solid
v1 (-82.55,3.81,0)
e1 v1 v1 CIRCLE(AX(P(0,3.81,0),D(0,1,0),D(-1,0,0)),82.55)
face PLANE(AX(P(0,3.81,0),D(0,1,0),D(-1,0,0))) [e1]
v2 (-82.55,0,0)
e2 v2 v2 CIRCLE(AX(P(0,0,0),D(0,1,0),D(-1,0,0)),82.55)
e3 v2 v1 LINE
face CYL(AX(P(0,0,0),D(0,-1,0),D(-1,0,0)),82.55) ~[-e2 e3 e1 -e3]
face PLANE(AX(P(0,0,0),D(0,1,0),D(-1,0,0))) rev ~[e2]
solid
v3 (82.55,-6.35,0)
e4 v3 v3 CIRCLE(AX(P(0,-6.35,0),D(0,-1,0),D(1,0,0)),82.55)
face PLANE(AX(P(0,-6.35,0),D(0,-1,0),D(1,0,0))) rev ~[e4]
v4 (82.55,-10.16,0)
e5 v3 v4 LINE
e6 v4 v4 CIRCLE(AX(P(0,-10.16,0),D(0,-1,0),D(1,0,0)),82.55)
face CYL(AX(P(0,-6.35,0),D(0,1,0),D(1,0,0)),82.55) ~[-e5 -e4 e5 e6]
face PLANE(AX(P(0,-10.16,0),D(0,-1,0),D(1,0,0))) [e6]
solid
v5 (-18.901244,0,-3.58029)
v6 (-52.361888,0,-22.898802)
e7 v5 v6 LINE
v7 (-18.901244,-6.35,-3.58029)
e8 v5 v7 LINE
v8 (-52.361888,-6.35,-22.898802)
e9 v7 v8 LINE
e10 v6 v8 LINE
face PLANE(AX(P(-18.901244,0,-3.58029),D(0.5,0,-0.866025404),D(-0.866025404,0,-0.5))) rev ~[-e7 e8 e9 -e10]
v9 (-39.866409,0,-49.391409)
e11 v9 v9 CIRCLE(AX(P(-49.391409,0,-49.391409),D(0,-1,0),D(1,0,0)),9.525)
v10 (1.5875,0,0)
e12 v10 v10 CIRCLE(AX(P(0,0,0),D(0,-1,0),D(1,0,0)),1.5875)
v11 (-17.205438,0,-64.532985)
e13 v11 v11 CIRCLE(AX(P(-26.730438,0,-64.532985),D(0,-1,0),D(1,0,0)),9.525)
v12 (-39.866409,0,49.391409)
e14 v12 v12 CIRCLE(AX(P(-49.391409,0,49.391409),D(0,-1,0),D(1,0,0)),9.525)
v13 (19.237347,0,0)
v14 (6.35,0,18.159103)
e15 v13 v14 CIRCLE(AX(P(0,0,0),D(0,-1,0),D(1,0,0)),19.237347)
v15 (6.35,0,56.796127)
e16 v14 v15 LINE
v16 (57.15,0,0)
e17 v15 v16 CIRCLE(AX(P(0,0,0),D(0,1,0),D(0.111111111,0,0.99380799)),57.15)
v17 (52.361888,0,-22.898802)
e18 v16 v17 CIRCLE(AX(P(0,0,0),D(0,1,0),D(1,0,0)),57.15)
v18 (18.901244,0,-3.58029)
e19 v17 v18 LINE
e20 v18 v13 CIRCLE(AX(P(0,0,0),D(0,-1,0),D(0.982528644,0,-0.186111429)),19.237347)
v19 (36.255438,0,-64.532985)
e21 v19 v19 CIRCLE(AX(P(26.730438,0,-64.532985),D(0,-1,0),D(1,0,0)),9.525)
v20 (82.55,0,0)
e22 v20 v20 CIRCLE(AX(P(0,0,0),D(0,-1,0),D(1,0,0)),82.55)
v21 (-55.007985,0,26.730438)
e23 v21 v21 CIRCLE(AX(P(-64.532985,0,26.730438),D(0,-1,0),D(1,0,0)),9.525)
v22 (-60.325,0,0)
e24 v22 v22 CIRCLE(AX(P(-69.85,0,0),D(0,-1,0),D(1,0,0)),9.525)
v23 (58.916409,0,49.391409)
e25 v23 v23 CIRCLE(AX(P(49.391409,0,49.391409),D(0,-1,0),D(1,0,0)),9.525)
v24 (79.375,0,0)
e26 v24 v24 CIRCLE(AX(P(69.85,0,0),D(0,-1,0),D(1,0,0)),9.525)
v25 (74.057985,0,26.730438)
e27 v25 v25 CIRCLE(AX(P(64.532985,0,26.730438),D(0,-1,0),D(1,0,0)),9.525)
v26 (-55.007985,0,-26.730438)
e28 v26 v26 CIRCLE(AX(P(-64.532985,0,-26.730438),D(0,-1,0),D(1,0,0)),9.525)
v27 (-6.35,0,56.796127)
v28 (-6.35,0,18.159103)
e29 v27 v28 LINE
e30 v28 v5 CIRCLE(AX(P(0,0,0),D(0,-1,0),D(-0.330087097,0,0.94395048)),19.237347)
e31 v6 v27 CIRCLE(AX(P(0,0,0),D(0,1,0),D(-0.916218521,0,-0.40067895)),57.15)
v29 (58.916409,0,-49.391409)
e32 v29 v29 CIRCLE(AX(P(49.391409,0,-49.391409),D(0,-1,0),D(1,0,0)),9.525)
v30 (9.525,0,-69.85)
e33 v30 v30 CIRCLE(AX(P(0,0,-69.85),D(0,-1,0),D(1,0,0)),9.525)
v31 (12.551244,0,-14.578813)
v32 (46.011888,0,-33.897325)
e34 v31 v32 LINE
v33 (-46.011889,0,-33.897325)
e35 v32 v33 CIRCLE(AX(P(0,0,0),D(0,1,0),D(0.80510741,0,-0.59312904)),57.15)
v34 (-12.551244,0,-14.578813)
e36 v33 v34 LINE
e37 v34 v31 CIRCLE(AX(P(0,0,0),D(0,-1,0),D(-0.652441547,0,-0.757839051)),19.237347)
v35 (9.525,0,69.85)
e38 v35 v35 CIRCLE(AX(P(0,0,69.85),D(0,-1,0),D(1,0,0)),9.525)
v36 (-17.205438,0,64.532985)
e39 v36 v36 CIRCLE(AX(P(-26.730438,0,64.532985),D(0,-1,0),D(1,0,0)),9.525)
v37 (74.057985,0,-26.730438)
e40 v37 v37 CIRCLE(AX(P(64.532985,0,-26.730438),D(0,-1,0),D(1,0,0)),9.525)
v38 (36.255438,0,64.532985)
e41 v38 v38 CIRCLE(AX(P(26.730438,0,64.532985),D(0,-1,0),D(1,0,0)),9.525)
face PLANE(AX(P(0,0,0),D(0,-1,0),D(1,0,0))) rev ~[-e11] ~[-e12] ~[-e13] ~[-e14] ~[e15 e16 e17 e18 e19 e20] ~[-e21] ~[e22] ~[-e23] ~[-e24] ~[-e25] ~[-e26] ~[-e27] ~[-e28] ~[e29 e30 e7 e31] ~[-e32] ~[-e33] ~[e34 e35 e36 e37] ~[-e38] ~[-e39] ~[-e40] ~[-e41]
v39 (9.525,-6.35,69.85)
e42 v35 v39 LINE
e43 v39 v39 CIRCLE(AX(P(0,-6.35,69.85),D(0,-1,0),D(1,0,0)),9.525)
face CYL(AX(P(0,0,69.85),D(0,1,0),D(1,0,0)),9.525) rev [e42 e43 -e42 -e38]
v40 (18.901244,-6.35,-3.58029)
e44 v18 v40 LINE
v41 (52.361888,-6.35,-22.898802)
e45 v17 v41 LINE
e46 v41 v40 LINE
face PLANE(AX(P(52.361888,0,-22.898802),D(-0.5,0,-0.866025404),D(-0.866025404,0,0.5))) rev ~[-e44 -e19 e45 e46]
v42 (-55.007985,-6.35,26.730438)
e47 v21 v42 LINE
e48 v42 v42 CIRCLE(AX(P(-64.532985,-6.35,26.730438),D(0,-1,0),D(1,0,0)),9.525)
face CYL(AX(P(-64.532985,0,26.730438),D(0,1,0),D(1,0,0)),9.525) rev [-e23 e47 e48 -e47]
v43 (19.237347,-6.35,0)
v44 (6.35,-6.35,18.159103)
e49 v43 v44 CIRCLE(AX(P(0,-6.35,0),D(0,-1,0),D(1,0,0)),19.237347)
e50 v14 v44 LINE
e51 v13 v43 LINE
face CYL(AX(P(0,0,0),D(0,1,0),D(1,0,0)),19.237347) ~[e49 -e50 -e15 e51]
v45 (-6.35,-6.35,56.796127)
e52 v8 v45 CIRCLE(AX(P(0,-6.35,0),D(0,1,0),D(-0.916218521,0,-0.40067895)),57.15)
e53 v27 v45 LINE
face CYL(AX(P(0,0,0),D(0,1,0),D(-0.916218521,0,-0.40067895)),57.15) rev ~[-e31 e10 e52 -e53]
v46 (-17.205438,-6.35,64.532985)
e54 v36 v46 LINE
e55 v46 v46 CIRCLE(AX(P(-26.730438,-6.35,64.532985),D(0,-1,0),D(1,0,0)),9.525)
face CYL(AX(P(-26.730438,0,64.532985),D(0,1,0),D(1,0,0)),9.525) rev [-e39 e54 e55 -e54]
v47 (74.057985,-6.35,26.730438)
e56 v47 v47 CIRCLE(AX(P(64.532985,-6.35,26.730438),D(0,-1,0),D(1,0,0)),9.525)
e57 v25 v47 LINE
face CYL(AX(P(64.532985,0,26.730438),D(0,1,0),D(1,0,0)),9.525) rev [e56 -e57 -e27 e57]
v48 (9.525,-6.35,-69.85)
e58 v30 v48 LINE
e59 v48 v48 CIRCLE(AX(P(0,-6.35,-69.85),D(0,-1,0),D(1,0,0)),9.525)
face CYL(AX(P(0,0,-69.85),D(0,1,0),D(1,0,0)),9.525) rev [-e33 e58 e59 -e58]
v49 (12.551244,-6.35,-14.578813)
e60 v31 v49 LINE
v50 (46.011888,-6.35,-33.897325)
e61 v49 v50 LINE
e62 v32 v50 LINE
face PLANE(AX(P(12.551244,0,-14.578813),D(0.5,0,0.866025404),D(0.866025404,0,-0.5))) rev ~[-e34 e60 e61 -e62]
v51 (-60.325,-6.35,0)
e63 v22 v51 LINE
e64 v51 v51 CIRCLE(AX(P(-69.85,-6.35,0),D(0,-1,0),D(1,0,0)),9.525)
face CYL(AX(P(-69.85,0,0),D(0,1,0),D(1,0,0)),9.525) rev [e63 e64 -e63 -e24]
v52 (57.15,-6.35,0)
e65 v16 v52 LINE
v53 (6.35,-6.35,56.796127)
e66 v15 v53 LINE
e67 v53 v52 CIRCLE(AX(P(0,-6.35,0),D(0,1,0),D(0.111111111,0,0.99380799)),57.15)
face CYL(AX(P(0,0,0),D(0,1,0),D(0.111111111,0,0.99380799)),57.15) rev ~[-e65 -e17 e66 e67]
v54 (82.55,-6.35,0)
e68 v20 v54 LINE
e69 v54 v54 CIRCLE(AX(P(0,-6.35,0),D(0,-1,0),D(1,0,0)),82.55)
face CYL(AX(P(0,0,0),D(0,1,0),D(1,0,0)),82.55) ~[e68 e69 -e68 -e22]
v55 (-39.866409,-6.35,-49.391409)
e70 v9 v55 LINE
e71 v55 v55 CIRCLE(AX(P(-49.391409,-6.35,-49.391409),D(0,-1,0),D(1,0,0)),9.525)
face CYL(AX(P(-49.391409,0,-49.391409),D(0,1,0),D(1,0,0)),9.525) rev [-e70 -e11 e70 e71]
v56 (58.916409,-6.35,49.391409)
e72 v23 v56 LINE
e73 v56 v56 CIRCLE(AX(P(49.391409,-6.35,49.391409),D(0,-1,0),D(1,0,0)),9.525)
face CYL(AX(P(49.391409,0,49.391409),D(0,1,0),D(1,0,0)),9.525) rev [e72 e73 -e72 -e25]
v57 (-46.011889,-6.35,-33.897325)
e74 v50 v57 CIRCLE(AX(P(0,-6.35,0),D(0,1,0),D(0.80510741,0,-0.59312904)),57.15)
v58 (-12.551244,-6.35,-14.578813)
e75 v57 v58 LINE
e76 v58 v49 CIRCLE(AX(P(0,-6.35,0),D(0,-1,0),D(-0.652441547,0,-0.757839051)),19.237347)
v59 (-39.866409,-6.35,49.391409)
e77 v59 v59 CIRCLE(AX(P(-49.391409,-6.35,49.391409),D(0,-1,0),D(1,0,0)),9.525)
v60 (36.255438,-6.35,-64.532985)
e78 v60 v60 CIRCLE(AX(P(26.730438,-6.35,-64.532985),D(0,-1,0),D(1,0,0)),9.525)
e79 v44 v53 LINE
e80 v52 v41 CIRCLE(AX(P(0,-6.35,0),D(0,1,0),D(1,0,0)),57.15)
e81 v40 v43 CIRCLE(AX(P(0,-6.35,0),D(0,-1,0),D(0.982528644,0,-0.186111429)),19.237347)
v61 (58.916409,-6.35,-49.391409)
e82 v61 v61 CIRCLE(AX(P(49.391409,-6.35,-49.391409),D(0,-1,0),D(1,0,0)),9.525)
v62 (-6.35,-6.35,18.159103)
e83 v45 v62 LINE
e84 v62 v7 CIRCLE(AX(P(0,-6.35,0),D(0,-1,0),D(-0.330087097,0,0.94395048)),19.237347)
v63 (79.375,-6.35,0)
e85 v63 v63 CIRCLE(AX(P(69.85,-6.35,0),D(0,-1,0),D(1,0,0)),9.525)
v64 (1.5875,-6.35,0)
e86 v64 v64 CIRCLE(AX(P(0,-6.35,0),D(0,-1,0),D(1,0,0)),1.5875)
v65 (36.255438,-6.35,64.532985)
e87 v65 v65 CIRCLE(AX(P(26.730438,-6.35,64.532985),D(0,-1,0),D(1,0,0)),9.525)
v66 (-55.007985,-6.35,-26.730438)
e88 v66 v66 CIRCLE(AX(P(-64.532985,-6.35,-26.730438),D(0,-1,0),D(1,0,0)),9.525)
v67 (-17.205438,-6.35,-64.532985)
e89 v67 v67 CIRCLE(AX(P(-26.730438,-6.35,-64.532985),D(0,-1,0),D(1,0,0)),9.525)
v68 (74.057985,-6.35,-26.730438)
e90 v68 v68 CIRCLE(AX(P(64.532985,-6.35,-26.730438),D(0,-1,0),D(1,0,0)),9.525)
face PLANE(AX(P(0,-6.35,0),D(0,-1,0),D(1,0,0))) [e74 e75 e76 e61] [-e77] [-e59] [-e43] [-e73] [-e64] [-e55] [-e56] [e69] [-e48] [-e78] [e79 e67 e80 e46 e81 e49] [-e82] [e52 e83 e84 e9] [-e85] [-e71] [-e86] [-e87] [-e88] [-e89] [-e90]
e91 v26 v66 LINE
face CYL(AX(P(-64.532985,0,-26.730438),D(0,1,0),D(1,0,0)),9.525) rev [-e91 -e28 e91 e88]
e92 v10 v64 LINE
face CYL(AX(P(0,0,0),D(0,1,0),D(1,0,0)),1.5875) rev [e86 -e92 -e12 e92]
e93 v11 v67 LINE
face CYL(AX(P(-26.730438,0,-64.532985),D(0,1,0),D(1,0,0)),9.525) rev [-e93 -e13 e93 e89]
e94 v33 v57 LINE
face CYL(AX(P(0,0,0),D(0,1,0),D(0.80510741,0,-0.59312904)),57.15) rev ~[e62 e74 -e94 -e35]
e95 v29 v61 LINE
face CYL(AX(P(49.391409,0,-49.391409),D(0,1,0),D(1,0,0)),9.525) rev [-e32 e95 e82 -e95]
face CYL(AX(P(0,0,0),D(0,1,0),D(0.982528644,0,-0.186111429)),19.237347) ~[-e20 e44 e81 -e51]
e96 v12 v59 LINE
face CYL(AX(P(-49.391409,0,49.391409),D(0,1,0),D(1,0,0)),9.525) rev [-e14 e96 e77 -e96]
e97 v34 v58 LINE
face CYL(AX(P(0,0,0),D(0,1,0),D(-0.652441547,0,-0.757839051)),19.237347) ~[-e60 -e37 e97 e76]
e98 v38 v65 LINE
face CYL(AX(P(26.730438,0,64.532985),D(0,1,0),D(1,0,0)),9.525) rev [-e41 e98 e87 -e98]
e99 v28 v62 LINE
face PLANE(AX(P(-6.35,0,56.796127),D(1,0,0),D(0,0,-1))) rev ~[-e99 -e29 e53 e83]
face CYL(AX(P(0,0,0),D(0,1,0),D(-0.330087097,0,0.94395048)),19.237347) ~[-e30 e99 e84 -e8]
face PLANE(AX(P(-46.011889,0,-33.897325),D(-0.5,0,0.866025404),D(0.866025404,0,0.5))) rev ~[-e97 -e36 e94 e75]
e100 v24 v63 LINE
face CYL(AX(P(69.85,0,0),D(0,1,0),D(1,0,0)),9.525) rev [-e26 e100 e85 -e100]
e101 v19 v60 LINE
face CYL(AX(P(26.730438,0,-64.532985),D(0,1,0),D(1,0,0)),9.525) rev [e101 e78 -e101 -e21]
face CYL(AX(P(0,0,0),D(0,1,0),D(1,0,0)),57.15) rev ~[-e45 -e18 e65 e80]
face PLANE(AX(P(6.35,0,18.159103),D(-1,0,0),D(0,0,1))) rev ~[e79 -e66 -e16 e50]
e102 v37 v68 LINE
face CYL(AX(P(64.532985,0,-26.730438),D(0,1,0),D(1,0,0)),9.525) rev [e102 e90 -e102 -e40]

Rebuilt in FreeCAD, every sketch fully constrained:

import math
import FreeCAD as App
import Part
import Sketcher

V = App.Vector
Q = App.Units.Quantity

doc = App.newDocument("Part")
body = doc.addObject("PartDesign::Body", "Body")

sketch1 = doc.addObject("Sketcher::SketchObject", "Sketch")
body.addObject(sketch1)
sketch1.AttachmentSupport = (doc.XZ_Plane, [""])
sketch1.MapMode = "FlatFace"
sketch1.addGeometry(Part.Circle(V(0, 0, 0), V(0, 0, 1), 82.5), False)
sketch1.addGeometry(Part.Circle(V(-49.4, -49.4, 0), V(0, 0, 1), 9.5), False)
sketch1.addGeometry(Part.Circle(V(-26.7, -64.5, 0), V(0, 0, 1), 9.5), False)
sketch1.addGeometry(Part.Circle(V(-64.5, -26.7, 0), V(0, 0, 1), 9.5), False)
sketch1.addGeometry(Part.Circle(V(0, -69.8, 0), V(0, 0, 1), 9.5), False)
sketch1.addGeometry(Part.Circle(V(26.7, -64.5, 0), V(0, 0, 1), 9.5), False)
sketch1.addGeometry(Part.Circle(V(49.4, -49.4, 0), V(0, 0, 1), 9.5), False)
sketch1.addGeometry(Part.Circle(V(64.5, -26.7, 0), V(0, 0, 1), 9.5), False)
sketch1.addGeometry(Part.Circle(V(-69.8, 0, 0), V(0, 0, 1), 9.5), False)
sketch1.addGeometry(Part.Circle(V(-64.5, 26.7, 0), V(0, 0, 1), 9.5), False)
sketch1.addGeometry(Part.Circle(V(-49.4, 49.4, 0), V(0, 0, 1), 9.5), False)
sketch1.addGeometry(Part.Circle(V(-26.7, 64.5, 0), V(0, 0, 1), 9.5), False)
sketch1.addGeometry(Part.ArcOfCircle(Part.Circle(V(0, 0, 0), V(0, 0, 1), 57.1), math.radians(96), math.radians(204)), False)
sketch1.addGeometry(Part.LineSegment(V(-6.3, 56.8, 0), V(-6.3, 18.2, 0)), False)
sketch1.addGeometry(Part.ArcOfCircle(Part.Circle(V(0, 0, 0), V(0, 0, 1), 19.2), math.radians(109), math.radians(191)), False)
sketch1.addGeometry(Part.LineSegment(V(-18.9, -3.6, 0), V(-52.4, -22.9, 0)), False)
sketch1.addGeometry(Part.ArcOfCircle(Part.Circle(V(0, 0, 0), V(0, 0, 1), 19.2), math.radians(-131), math.radians(-49)), False)
sketch1.addGeometry(Part.LineSegment(V(12.6, -14.6, 0), V(46, -33.9, 0)), False)
sketch1.addGeometry(Part.ArcOfCircle(Part.Circle(V(0, 0, 0), V(0, 0, 1), 57.1), math.radians(-144), math.radians(-36)), False)
sketch1.addGeometry(Part.LineSegment(V(-46, -33.9, 0), V(-12.6, -14.6, 0)), False)
sketch1.addGeometry(Part.ArcOfCircle(Part.Circle(V(0, 0, 0), V(0, 0, 1), 19.2), math.radians(-10.73), math.radians(0)), False)
sketch1.addGeometry(Part.ArcOfCircle(Part.Circle(V(0, 0, 0), V(0, 0, 1), 19.2), math.radians(0), math.radians(71)), False)
sketch1.addGeometry(Part.LineSegment(V(6.3, 18.2, 0), V(6.3, 56.8, 0)), False)
sketch1.addGeometry(Part.ArcOfCircle(Part.Circle(V(0, 0, 0), V(0, 0, 1), 57.1), math.radians(0), math.radians(84)), False)
sketch1.addGeometry(Part.ArcOfCircle(Part.Circle(V(0, 0, 0), V(0, 0, 1), 57.2), math.radians(-24), math.radians(0)), False)
sketch1.addGeometry(Part.LineSegment(V(52.4, -22.9, 0), V(18.9, -3.6, 0)), False)
sketch1.addGeometry(Part.Circle(V(69.8, 0, 0), V(0, 0, 1), 9.5), False)
sketch1.addGeometry(Part.Circle(V(64.5, 26.7, 0), V(0, 0, 1), 9.5), False)
sketch1.addGeometry(Part.Circle(V(0, 69.8, 0), V(0, 0, 1), 9.5), False)
sketch1.addGeometry(Part.Circle(V(26.7, 64.5, 0), V(0, 0, 1), 9.5), False)
sketch1.addGeometry(Part.Circle(V(49.4, 49.4, 0), V(0, 0, 1), 9.5), False)
sketch1.addGeometry(Part.Circle(V(0, 0, 0), V(0, 0, 1), 1.6), False)
sketch1.addConstraint(Sketcher.Constraint("Coincident", 12, 1, 13, 1))
sketch1.addConstraint(Sketcher.Constraint("Coincident", 13, 2, 14, 1))
sketch1.addConstraint(Sketcher.Constraint("Coincident", 14, 2, 15, 1))
sketch1.addConstraint(Sketcher.Constraint("Coincident", 15, 2, 12, 2))
sketch1.addConstraint(Sketcher.Constraint("Coincident", 16, 2, 17, 1))
sketch1.addConstraint(Sketcher.Constraint("Coincident", 17, 2, 18, 2))
sketch1.addConstraint(Sketcher.Constraint("Coincident", 18, 1, 19, 1))
sketch1.addConstraint(Sketcher.Constraint("Coincident", 19, 2, 16, 1))
sketch1.addConstraint(Sketcher.Constraint("Tangent", 20, 2, 21, 1))
sketch1.addConstraint(Sketcher.Constraint("Coincident", 21, 2, 22, 1))
sketch1.addConstraint(Sketcher.Constraint("Coincident", 22, 2, 23, 2))
sketch1.addConstraint(Sketcher.Constraint("Tangent", 23, 1, 24, 2))
sketch1.addConstraint(Sketcher.Constraint("Coincident", 24, 1, 25, 1))
sketch1.addConstraint(Sketcher.Constraint("Coincident", 25, 2, 20, 1))
sketch1.addConstraint(Sketcher.Constraint("Vertical", 13))
sketch1.addConstraint(Sketcher.Constraint("Vertical", 22))
sketch1.addConstraint(Sketcher.Constraint("Coincident", 0, 3, -1, 1))
sketch1.addConstraint(Sketcher.Constraint("Coincident", 12, 3, -1, 1))
sketch1.addConstraint(Sketcher.Constraint("Coincident", 14, 3, -1, 1))
sketch1.addConstraint(Sketcher.Constraint("Coincident", 16, 3, -1, 1))
sketch1.addConstraint(Sketcher.Constraint("Coincident", 18, 3, -1, 1))
sketch1.addConstraint(Sketcher.Constraint("Coincident", 20, 3, -1, 1))
sketch1.addConstraint(Sketcher.Constraint("Coincident", 23, 3, -1, 1))
sketch1.addConstraint(Sketcher.Constraint("Coincident", 31, 3, -1, 1))
sketch1.addConstraint(Sketcher.Constraint("Equal", 1, 2))
sketch1.addConstraint(Sketcher.Constraint("Equal", 2, 3))
sketch1.addConstraint(Sketcher.Constraint("Equal", 3, 4))
sketch1.addConstraint(Sketcher.Constraint("Equal", 4, 5))
sketch1.addConstraint(Sketcher.Constraint("Equal", 5, 6))
sketch1.addConstraint(Sketcher.Constraint("Equal", 6, 7))
sketch1.addConstraint(Sketcher.Constraint("Equal", 7, 8))
sketch1.addConstraint(Sketcher.Constraint("Equal", 8, 9))
sketch1.addConstraint(Sketcher.Constraint("Equal", 9, 10))
sketch1.addConstraint(Sketcher.Constraint("Equal", 10, 11))
sketch1.addConstraint(Sketcher.Constraint("Equal", 14, 16))
sketch1.addConstraint(Sketcher.Constraint("Equal", 12, 18))
sketch1.addConstraint(Sketcher.Constraint("Equal", 16, 20))
sketch1.addConstraint(Sketcher.Constraint("Equal", 20, 21))
sketch1.addConstraint(Sketcher.Constraint("Equal", 18, 23))
sketch1.addConstraint(Sketcher.Constraint("Equal", 23, 24))
sketch1.addConstraint(Sketcher.Constraint("Equal", 11, 26))
sketch1.addConstraint(Sketcher.Constraint("Equal", 26, 27))
sketch1.addConstraint(Sketcher.Constraint("Equal", 27, 28))
sketch1.addConstraint(Sketcher.Constraint("Equal", 28, 29))
sketch1.addConstraint(Sketcher.Constraint("Equal", 29, 30))
sketch1.addConstraint(Sketcher.Constraint("Symmetric", 7, 3, 9, 3, -1, 1))
sketch1.addConstraint(Sketcher.Constraint("Symmetric", 6, 3, 10, 3, -1, 1))
sketch1.addConstraint(Sketcher.Constraint("Symmetric", 5, 3, 11, 3, -1, 1))
sketch1.addConstraint(Sketcher.Constraint("Symmetric", 8, 3, 26, 3, -1, 1))
sketch1.addConstraint(Sketcher.Constraint("Symmetric", 3, 3, 27, 3, -1, 1))
sketch1.addConstraint(Sketcher.Constraint("Symmetric", 4, 3, 28, 3, -1, 1))
sketch1.addConstraint(Sketcher.Constraint("Symmetric", 2, 3, 29, 3, -1, 1))
sketch1.addConstraint(Sketcher.Constraint("Symmetric", 1, 3, 30, 3, -1, 1))
sketch1.addConstraint(Sketcher.Constraint("Symmetric", 2, 3, 5, 3, -2))
sketch1.addConstraint(Sketcher.Constraint("Symmetric", 1, 3, 6, 3, -2))
sketch1.addConstraint(Sketcher.Constraint("Symmetric", 3, 3, 7, 3, -2))
sketch1.addConstraint(Sketcher.Constraint("PointOnObject", 4, 3, -2))
sketch1.addConstraint(Sketcher.Constraint("PointOnObject", 8, 3, -1))
sketch1.addConstraint(Sketcher.Constraint("PointOnObject", 20, 2, -1))
sketch1.addConstraint(Sketcher.Constraint("PointOnObject", 23, 1, -1))
sketch1.addConstraint(Sketcher.Constraint("Parallel", 15, 19))
sketch1.addConstraint(Sketcher.Constraint("Parallel", 17, 25))
sketch1.addConstraint(Sketcher.Constraint("Horizontal", 17, 2, 18, 1))
sketch1.addConstraint(Sketcher.Constraint("Horizontal", 16, 2, 19, 2))
sketch1.addConstraint(Sketcher.Constraint("Horizontal", 13, 2, 21, 2))
sketch1.addConstraint(Sketcher.Constraint("Horizontal", 15, 2, 24, 1))
sketch1.addConstraint(Sketcher.Constraint("Equal", 15, 17))
sketch1.addConstraint(Sketcher.Constraint("Diameter", 0, Q("6.5 in")))
sketch1.addConstraint(Sketcher.Constraint("Diameter", 1, Q("0.75 in")))
sketch1.addConstraint(Sketcher.Constraint("Radius", 12, Q("2.25 in")))
sketch1.addConstraint(Sketcher.Constraint("Diameter", 31, Q("0.125 in")))
sketch1.addConstraint(Sketcher.Constraint("Angle", 15, Q("-150 deg")))
sketch1.addConstraint(Sketcher.Constraint("DistanceX", 13, 2, 21, 2, Q("0.5 in")))
sketch1.addConstraint(Sketcher.Constraint("DistanceX", 23, 1, 26, 3, Q("0.5 in")))
sketch1.addConstraint(Sketcher.Constraint("DistanceY", 4, 3, -1, 1, Q("2.75 in")))
sketch1.addConstraint(Sketcher.Constraint("DistanceX", 15, 2, 18, 1, Q("0.25 in")))
sketch1.addConstraint(Sketcher.Constraint("Radius", 14, 19.237347))
sketch1.addConstraint(Sketcher.Constraint("DistanceX", 1, 3, -1, 1, 49.391409))
sketch1.addConstraint(Sketcher.Constraint("DistanceY", 1, 3, -1, 1, 49.391409))
sketch1.addConstraint(Sketcher.Constraint("DistanceX", 1, 3, 2, 3, 22.660971))
sketch1.addConstraint(Sketcher.Constraint("DistanceY", 1, 3, 3, 3, 22.660971))
sketch1.addConstraint(Sketcher.Constraint("DistanceY", 12, 1, 11, 3, 7.736859))
sketch1.addConstraint(Sketcher.Constraint("DistanceX", 3, 3, -1, 1, 64.532985))
pad1 = doc.addObject("PartDesign::Pad", "Pad")
body.addObject(pad1)
pad1.Profile = sketch1
pad1.Length = Q("0.25 in")

sketch2 = doc.addObject("Sketcher::SketchObject", "Sketch001")
body.addObject(sketch2)
sketch2.AttachmentSupport = (doc.XZ_Plane, [""])
sketch2.MapMode = "FlatFace"
sketch2.AttachmentOffset = App.Placement(V(0, 0, 0.25 * 25.4), App.Rotation())
sketch2.addGeometry(Part.Circle(V(0, 0, 0), V(0, 0, 1), 1.6), False)
sketch2.addConstraint(Sketcher.Constraint("Coincident", 0, 3, -1, 1))
sketch2.addConstraint(Sketcher.Constraint("Diameter", 0, Q("0.125 in")))
pocket1 = doc.addObject("PartDesign::Pocket", "Pocket")
body.addObject(pocket1)
pocket1.Profile = sketch2
pocket1.Length = Q("1 in")
body2 = doc.addObject("PartDesign::Body", "Body001")

sketch3 = doc.addObject("Sketcher::SketchObject", "Sketch002")
body2.addObject(sketch3)
sketch3.AttachmentSupport = (doc.getObject("XZ_Plane001"), [""])
sketch3.MapMode = "FlatFace"
sketch3.AttachmentOffset = App.Placement(V(0, 0, 0.25 * 25.4), App.Rotation())
sketch3.addGeometry(Part.Circle(V(0, 0, 0), V(0, 0, 1), 83), False)
sketch3.addConstraint(Sketcher.Constraint("Coincident", 0, 3, -1, 1))
sketch3.addConstraint(Sketcher.Constraint("Diameter", 0, Q("6.5 in")))
pad2 = doc.addObject("PartDesign::Pad", "Pad001")
body2.addObject(pad2)
pad2.Profile = sketch3
pad2.Length = Q("0.15 in")
body3 = doc.addObject("PartDesign::Body", "Body002")

sketch4 = doc.addObject("Sketcher::SketchObject", "Sketch003")
body3.addObject(sketch4)
sketch4.AttachmentSupport = (doc.getObject("XZ_Plane002"), [""])
sketch4.MapMode = "FlatFace"
sketch4.addGeometry(Part.Circle(V(0, 0, 0), V(0, 0, 1), 83), False)
sketch4.addConstraint(Sketcher.Constraint("Coincident", 0, 3, -1, 1))
sketch4.addConstraint(Sketcher.Constraint("Diameter", 0, Q("6.5 in")))
pad3 = doc.addObject("PartDesign::Pad", "Pad002")
body3.addObject(pad3)
pad3.Profile = sketch4
pad3.Length = Q("0.15 in")
pad3.Reversed = True

doc.recompute()
